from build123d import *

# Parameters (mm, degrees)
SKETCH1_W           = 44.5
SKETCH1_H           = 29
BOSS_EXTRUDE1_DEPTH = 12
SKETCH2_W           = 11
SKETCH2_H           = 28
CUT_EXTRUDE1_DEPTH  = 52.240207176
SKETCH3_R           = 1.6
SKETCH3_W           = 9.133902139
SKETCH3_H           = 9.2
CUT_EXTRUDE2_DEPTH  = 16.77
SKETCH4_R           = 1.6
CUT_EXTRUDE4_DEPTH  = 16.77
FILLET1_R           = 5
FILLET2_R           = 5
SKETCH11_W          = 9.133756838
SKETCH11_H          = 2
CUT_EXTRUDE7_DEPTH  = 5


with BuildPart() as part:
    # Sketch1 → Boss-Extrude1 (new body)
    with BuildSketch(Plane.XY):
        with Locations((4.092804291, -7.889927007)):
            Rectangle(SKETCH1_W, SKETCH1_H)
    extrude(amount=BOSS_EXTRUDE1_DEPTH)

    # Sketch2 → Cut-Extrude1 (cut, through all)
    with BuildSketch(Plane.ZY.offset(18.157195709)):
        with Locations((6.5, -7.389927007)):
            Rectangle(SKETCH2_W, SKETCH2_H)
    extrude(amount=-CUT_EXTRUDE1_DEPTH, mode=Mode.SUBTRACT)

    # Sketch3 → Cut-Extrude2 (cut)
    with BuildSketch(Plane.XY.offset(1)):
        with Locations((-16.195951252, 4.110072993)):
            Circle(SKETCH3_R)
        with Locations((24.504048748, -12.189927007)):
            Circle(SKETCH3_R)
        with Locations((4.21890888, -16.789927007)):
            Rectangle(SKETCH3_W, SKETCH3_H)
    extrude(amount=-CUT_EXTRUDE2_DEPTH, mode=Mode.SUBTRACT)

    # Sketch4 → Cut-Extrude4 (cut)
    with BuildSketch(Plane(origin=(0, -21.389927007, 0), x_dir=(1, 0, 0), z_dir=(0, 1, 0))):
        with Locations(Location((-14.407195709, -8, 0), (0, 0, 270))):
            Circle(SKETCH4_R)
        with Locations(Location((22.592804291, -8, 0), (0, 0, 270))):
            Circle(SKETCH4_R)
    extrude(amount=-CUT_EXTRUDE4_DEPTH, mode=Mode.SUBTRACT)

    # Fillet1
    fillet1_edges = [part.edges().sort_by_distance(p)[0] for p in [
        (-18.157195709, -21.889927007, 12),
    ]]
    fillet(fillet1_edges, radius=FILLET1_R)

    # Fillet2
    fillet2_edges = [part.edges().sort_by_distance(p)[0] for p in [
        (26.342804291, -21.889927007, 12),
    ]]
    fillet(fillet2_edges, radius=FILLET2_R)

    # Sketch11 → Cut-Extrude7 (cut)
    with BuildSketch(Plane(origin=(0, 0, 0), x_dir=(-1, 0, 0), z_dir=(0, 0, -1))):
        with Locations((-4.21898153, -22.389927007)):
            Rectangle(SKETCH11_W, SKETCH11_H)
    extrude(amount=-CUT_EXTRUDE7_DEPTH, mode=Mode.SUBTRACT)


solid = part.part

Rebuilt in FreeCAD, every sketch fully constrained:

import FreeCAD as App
import Part
import Sketcher
from FreeCAD import Vector
Q = App.Units.Quantity


def edges_at(feature, points):
    """Names of the edges that pass closest to the given points."""
    edges = feature.Shape.Edges
    near = lambda p: min(range(len(edges)), key=lambda i: edges[i].distToShape(Part.Vertex(*p))[0])
    return sorted({f"Edge{near(p) + 1}" for p in points})


def add_polygon(sketch, points):
    """Adds a closed chain of lines whose ends are joined by coincident constraints."""
    first, n = sketch.GeometryCount, len(points)
    for a, b in zip(points, points[1:] + points[:1]):
        sketch.addGeometry(Part.LineSegment(App.Vector(*a, 0), App.Vector(*b, 0)), False)
    for i in range(n):
        sketch.addConstraint(Sketcher.Constraint("Coincident", first + i, 2, first + (i + 1) % n, 1))

doc = App.newDocument("Part")
body = doc.addObject("PartDesign::Body", "Body")

# Sketch on XY plane
sketch1 = body.newObject("Sketcher::SketchObject", "Sketch")
sketch1.AttachmentSupport = (doc.getObject("XY_Plane"), [""])
sketch1.MapMode = "FlatFace"
add_polygon(sketch1, [(-18, 7), (-18, -22), (26, -22), (26, 7)])  # lines 0-3
sketch1.addConstraint(Sketcher.Constraint("Vertical", 0))
sketch1.addConstraint(Sketcher.Constraint("Horizontal", 1))
sketch1.addConstraint(Sketcher.Constraint("Vertical", 2))
sketch1.addConstraint(Sketcher.Constraint("Horizontal", 3))
sketch1.addConstraint(Sketcher.Constraint("DistanceY", 0, 2, 0, 1, Q("29 mm")))
sketch1.addConstraint(Sketcher.Constraint("DistanceX", 1, 1, 1, 2, Q("44.5 mm")))
sketch1.addConstraint(Sketcher.Constraint("DistanceX", 0, 2, -1, 1, Q("18.157196 mm")))
sketch1.addConstraint(Sketcher.Constraint("DistanceY", 0, 2, -1, 1, Q("22.389927 mm")))
pad1 = body.newObject("PartDesign::Pad", "Pad")
pad1.Profile = sketch1
pad1.Length = 12

# Sketch on YZ plane
sketch2 = body.newObject("Sketcher::SketchObject", "Sketch001")
sketch2.AttachmentSupport = (doc.getObject("YZ_Plane"), [""])
sketch2.MapMode = "FlatFace"
sketch2.AttachmentOffset = App.Placement(Vector(0, 0, -18.157196), App.Rotation())
add_polygon(sketch2, [(7, 1), (-21, 1), (-21, 12), (7, 12)])  # lines 0-3
sketch2.addConstraint(Sketcher.Constraint("Horizontal", 0))
sketch2.addConstraint(Sketcher.Constraint("Vertical", 1))
sketch2.addConstraint(Sketcher.Constraint("Horizontal", 2))
sketch2.addConstraint(Sketcher.Constraint("Vertical", 3))
sketch2.addConstraint(Sketcher.Constraint("DistanceX", 0, 2, 0, 1, Q("28 mm")))
sketch2.addConstraint(Sketcher.Constraint("DistanceY", 1, 1, 1, 2, Q("11 mm")))
sketch2.addConstraint(Sketcher.Constraint("DistanceY", -1, 1, 0, 2, Q("1 mm")))
sketch2.addConstraint(Sketcher.Constraint("DistanceX", 0, 2, -1, 1, Q("21.389927 mm")))
pocket1 = body.newObject("PartDesign::Pocket", "Pocket")
pocket1.Profile = sketch2
pocket1.Type = "ThroughAll"
pocket1.Reversed = True

# Sketch on XY plane
sketch3 = body.newObject("Sketcher::SketchObject", "Sketch002")
sketch3.AttachmentSupport = (doc.getObject("XY_Plane"), [""])
sketch3.MapMode = "FlatFace"
sketch3.AttachmentOffset = App.Placement(Vector(0, 0, 1), App.Rotation())
sketch3.addGeometry(Part.Circle(Vector(-16.2, 4.1, 0), Vector(0, 0, 1), 1.6), False)  # 0
sketch3.addGeometry(Part.Circle(Vector(24.5, -12.2, 0), Vector(0, 0, 1), 1.6), False)  # 1
add_polygon(sketch3, [(-0.3, -12.2), (-0.3, -21.4), (8.8, -21.4), (8.8, -12.2)])  # lines 2-5
sketch3.addConstraint(Sketcher.Constraint("Vertical", 2))
sketch3.addConstraint(Sketcher.Constraint("Horizontal", 3))
sketch3.addConstraint(Sketcher.Constraint("Vertical", 4))
sketch3.addConstraint(Sketcher.Constraint("Horizontal", 5))
sketch3.addConstraint(Sketcher.Constraint("Equal", 0, 1))
sketch3.addConstraint(Sketcher.Constraint("Horizontal", 1, 3, 4, 2))
sketch3.addConstraint(Sketcher.Constraint("Diameter", 0, Q("3.2 mm")))
sketch3.addConstraint(Sketcher.Constraint("DistanceY", 2, 2, 2, 1, Q("9.2 mm")))
sketch3.addConstraint(Sketcher.Constraint("DistanceX", 0, 3, 1, 3, Q("40.7 mm")))
sketch3.addConstraint(Sketcher.Constraint("DistanceY", 1, 3, 0, 3, Q("16.3 mm")))
sketch3.addConstraint(Sketcher.Constraint("DistanceX", 3, 1, 3, 2, Q("9.133902 mm")))
sketch3.addConstraint(Sketcher.Constraint("DistanceX", 0, 3, -1, 1, Q("16.195951 mm")))
sketch3.addConstraint(Sketcher.Constraint("DistanceX", -1, 1, 3, 2, Q("8.78586 mm")))
sketch3.addConstraint(Sketcher.Constraint("DistanceY", -1, 1, 0, 3, Q("4.110073 mm")))
pocket2 = body.newObject("PartDesign::Pocket", "Pocket001")
pocket2.Profile = sketch3
pocket2.Length = 16.77

# Sketch on XZ plane
sketch4 = body.newObject("Sketcher::SketchObject", "Sketch003")
sketch4.AttachmentSupport = (doc.getObject("XZ_Plane"), [""])
sketch4.MapMode = "FlatFace"
sketch4.AttachmentOffset = App.Placement(Vector(0, 0, 21.389927), App.Rotation())
sketch4.addGeometry(Part.Circle(Vector(-14.4, 8, 0), Vector(0, 0, 1), 1.6), False)
sketch4.addGeometry(Part.Circle(Vector(22.6, 8, 0), Vector(0, 0, 1), 1.6), False)
sketch4.addConstraint(Sketcher.Constraint("Equal", 0, 1))
sketch4.addConstraint(Sketcher.Constraint("Horizontal", 0, 3, 1, 3))
sketch4.addConstraint(Sketcher.Constraint("Diameter", 0, Q("3.2 mm")))
sketch4.addConstraint(Sketcher.Constraint("DistanceY", -1, 1, 0, 3, Q("8 mm")))
sketch4.addConstraint(Sketcher.Constraint("DistanceX", 0, 3, 1, 3, Q("37 mm")))
sketch4.addConstraint(Sketcher.Constraint("DistanceX", 0, 3, -1, 1, Q("14.407196 mm")))
pocket3 = body.newObject("PartDesign::Pocket", "Pocket002")
pocket3.Profile = sketch4
pocket3.Length = 16.77
pocket3.Reversed = True
doc.recompute()

fillet = body.newObject("PartDesign::Fillet", "Fillet")
fillet.Base = (pocket3, edges_at(pocket3, [(-18.157, -21.89, 12)]))
fillet.Radius = 5
doc.recompute()

fillet2 = body.newObject("PartDesign::Fillet", "Fillet001")
fillet2.Base = (fillet, edges_at(fillet, [(26.343, -21.89, 12)]))
fillet2.Radius = 5

# Sketch on XY plane
sketch5 = body.newObject("Sketcher::SketchObject", "Sketch004")
sketch5.AttachmentSupport = (doc.getObject("XY_Plane"), [""])
sketch5.MapMode = "FlatFace"
add_polygon(sketch5, [(8.8, -21.4), (8.8, -23.4), (-0.3, -23.4), (-0.3, -21.4)])  # lines 0-3
sketch5.addConstraint(Sketcher.Constraint("Vertical", 0))
sketch5.addConstraint(Sketcher.Constraint("Horizontal", 1))
sketch5.addConstraint(Sketcher.Constraint("Vertical", 2))
sketch5.addConstraint(Sketcher.Constraint("Horizontal", 3))
sketch5.addConstraint(Sketcher.Constraint("DistanceY", 0, 2, 0, 1, Q("2 mm")))
sketch5.addConstraint(Sketcher.Constraint("DistanceX", 1, 2, 1, 1, Q("9.133757 mm")))
sketch5.addConstraint(Sketcher.Constraint("DistanceX", -1, 1, 0, 2, Q("8.78586 mm")))
sketch5.addConstraint(Sketcher.Constraint("DistanceY", 0, 2, -1, 1, Q("23.389927 mm")))
pocket4 = body.newObject("PartDesign::Pocket", "Pocket003")
pocket4.Profile = sketch5
pocket4.Length = 5
pocket4.Reversed = True

doc.recompute()
